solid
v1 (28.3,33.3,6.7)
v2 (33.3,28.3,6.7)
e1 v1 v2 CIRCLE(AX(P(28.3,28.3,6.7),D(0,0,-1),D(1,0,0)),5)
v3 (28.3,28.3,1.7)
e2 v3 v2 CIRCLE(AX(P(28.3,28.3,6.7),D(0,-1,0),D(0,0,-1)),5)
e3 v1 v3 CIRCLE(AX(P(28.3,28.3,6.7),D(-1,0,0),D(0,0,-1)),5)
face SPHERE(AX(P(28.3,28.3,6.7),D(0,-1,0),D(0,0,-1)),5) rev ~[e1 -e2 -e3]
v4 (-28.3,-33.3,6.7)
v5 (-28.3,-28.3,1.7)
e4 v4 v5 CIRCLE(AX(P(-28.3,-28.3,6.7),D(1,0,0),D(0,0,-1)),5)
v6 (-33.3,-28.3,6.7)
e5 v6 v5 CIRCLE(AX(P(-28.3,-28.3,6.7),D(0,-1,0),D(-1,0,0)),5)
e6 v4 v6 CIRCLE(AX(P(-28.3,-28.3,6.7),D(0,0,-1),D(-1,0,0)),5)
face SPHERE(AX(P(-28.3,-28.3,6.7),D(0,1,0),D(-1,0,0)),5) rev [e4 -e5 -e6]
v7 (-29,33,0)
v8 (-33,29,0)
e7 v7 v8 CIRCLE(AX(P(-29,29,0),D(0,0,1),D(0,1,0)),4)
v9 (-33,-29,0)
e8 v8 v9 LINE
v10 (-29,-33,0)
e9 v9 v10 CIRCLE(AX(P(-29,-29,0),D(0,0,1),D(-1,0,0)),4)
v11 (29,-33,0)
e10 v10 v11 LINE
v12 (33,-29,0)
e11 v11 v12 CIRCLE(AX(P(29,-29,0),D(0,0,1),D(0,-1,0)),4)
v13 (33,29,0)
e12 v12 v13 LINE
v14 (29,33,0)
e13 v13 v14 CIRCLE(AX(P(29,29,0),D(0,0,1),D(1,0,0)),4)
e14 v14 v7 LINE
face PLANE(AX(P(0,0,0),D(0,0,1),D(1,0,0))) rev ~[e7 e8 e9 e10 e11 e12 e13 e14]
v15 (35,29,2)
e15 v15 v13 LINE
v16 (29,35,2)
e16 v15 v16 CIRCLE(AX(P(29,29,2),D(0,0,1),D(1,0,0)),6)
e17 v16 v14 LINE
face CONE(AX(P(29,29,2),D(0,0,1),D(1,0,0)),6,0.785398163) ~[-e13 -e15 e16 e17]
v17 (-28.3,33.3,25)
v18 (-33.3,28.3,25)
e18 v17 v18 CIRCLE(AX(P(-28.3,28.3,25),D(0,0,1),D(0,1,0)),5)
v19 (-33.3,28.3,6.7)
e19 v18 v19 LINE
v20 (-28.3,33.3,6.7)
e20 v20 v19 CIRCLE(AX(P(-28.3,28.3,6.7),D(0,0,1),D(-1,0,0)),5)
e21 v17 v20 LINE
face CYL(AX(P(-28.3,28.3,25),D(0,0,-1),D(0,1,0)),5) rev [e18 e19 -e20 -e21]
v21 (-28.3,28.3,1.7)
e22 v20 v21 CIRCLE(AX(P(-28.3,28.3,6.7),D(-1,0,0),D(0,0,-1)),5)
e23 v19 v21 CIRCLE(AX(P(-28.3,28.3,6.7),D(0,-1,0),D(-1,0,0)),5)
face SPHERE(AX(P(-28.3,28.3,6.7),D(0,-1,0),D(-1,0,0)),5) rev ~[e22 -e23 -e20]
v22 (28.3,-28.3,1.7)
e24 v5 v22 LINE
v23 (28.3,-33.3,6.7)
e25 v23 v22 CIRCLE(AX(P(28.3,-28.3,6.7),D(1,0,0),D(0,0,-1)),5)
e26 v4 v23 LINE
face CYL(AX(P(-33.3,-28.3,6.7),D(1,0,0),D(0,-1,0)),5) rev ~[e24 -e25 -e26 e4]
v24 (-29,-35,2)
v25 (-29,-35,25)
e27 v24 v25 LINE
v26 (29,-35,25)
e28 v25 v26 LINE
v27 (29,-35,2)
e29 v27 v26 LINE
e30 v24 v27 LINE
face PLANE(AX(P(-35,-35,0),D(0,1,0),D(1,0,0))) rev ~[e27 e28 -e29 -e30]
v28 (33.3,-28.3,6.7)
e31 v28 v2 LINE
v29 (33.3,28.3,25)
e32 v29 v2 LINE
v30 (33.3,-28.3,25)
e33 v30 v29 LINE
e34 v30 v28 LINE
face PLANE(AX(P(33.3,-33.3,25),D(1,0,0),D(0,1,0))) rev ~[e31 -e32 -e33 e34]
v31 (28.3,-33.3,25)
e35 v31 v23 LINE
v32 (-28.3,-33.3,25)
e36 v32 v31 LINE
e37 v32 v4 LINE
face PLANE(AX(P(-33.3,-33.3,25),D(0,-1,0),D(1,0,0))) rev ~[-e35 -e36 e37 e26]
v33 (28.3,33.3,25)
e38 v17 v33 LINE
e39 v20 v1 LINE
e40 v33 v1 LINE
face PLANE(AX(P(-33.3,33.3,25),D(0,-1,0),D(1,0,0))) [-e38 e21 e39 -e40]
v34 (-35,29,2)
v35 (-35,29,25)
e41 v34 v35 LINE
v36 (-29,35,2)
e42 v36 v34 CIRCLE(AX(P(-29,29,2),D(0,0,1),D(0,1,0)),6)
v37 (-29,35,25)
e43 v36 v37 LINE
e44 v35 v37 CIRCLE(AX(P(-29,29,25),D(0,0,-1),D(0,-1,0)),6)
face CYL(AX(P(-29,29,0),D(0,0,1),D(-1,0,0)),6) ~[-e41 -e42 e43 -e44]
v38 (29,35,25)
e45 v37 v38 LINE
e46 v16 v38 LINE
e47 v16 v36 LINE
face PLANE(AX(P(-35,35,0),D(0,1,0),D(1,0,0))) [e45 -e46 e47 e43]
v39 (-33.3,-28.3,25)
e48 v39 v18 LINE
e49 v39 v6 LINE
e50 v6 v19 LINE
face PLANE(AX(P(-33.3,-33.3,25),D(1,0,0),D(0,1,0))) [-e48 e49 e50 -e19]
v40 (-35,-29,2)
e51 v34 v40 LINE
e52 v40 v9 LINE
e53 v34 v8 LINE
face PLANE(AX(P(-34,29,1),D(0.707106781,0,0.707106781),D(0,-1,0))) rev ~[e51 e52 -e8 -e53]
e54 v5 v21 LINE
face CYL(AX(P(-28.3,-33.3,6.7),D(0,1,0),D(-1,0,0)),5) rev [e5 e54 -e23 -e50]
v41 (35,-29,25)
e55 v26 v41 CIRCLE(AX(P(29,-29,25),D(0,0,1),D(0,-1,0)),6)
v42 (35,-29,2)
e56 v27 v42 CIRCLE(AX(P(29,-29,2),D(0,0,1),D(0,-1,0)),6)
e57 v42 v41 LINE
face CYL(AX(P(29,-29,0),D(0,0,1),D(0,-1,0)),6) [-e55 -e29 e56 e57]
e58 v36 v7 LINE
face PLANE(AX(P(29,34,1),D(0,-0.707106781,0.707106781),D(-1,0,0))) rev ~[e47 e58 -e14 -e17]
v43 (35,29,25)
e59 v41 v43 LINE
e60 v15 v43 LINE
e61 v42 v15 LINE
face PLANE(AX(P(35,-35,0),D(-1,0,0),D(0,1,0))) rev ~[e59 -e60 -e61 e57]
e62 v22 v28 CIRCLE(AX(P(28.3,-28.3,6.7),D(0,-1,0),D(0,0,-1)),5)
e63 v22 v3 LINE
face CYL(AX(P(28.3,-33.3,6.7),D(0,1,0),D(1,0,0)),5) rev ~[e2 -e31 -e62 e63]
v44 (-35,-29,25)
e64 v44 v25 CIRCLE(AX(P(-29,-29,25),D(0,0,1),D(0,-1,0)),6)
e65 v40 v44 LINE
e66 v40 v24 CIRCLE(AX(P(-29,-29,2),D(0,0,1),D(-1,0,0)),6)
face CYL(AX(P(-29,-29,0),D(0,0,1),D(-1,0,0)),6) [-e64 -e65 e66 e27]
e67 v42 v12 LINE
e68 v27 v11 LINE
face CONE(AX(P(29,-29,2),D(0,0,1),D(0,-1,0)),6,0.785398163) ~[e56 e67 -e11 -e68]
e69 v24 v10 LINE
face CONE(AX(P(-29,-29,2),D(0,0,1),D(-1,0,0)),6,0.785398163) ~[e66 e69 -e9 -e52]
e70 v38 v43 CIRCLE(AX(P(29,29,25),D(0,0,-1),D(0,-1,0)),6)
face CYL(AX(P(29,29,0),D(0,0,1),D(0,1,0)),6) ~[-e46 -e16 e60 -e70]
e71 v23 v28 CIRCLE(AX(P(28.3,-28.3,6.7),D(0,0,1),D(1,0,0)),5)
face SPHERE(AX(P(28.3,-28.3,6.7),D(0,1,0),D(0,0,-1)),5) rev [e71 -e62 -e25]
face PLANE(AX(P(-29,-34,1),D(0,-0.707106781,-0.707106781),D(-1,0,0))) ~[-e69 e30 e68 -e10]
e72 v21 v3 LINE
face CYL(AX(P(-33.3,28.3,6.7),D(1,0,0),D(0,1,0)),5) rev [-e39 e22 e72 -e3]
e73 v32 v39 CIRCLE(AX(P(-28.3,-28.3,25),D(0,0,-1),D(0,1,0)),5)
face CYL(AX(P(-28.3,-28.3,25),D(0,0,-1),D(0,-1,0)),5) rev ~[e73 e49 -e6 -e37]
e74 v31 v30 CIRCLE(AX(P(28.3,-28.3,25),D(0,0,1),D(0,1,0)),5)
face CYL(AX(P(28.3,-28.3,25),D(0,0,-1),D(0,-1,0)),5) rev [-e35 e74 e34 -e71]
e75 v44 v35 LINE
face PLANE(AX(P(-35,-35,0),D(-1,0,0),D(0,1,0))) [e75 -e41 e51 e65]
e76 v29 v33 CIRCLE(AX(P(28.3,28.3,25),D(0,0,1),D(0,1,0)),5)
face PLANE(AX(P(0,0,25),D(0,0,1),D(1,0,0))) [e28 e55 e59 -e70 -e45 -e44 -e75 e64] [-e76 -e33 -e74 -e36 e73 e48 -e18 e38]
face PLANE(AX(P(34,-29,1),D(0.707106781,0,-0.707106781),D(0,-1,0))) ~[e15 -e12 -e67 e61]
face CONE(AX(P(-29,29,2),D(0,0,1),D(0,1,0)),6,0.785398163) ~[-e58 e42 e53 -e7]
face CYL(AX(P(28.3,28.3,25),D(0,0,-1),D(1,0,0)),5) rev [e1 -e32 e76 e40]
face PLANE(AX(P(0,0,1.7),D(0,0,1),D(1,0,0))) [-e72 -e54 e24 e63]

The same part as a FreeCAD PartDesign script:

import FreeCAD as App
import Part
import Sketcher
from FreeCAD import Vector


def edges_at(feature, points):
    """Names of the edges that pass closest to the given points."""
    edges = feature.Shape.Edges
    near = lambda p: min(range(len(edges)), key=lambda i: edges[i].distToShape(Part.Vertex(*p))[0])
    return sorted({f"Edge{near(p) + 1}" for p in points})

doc = App.newDocument("Part")
params = doc.addObject("Spreadsheet::Sheet", "Params")
for row, (alias, value) in enumerate([
    ("sketch1_width", "70 mm"),
    ("pad1_length", "25 mm"),
    ("sketch2_width", "66.6 mm"),
    ("pocket1_length", "23.3 mm"),
    ("fillet_radius", "5 mm"),
    ("fillet2_radius", "6 mm"),
    ("chamfer_size", "2 mm"),
], start=1):
    params.set(f"A{row}", alias)
    params.set(f"B{row}", "=" + value)
    params.setAlias(f"B{row}", alias)

body = doc.addObject("PartDesign::Body", "Body")

# Sketch on XY plane
sketch1 = body.newObject("Sketcher::SketchObject", "Sketch")
sketch1.AttachmentSupport = (doc.getObject("XY_Plane"), [""])
sketch1.MapMode = "FlatFace"
sketch1.addGeometry(Part.LineSegment(Vector(-35, 35, 0), Vector(-35, -35, 0)), False)
sketch1.addGeometry(Part.LineSegment(Vector(-35, -35, 0), Vector(35, -35, 0)), False)
sketch1.addGeometry(Part.LineSegment(Vector(35, -35, 0), Vector(35, 35, 0)), False)
sketch1.addGeometry(Part.LineSegment(Vector(35, 35, 0), Vector(-35, 35, 0)), False)
sketch1.addConstraint(Sketcher.Constraint("Coincident", 0, 2, 1, 1))
sketch1.addConstraint(Sketcher.Constraint("Coincident", 1, 2, 2, 1))
sketch1.addConstraint(Sketcher.Constraint("Coincident", 2, 2, 3, 1))
sketch1.addConstraint(Sketcher.Constraint("Coincident", 3, 2, 0, 1))
sketch1.addConstraint(Sketcher.Constraint("Vertical", 0))
sketch1.addConstraint(Sketcher.Constraint("Horizontal", 1))
sketch1.addConstraint(Sketcher.Constraint("Vertical", 2))
sketch1.addConstraint(Sketcher.Constraint("Horizontal", 3))
sketch1.addConstraint(Sketcher.Constraint("Symmetric", 0, 2, 2, 2, -1, 1))
sketch1.addConstraint(Sketcher.Constraint("Equal", 3, 0))
sketch1.addConstraint(Sketcher.Constraint("DistanceX", 1, 1, 1, 2, 70.0))
sketch1.setExpression("Constraints[10]", "Params.sketch1_width")
pad1 = body.newObject("PartDesign::Pad", "Pad")
pad1.Profile = sketch1
pad1.setExpression("Length", "Params.pad1_length")

# Sketch on XY plane
sketch2 = body.newObject("Sketcher::SketchObject", "Sketch001")
sketch2.AttachmentSupport = (doc.getObject("XY_Plane"), [""])
sketch2.MapMode = "FlatFace"
sketch2.AttachmentOffset = App.Placement(Vector(0, 0, 25), App.Rotation())
sketch2.addGeometry(Part.LineSegment(Vector(-33, 33, 0), Vector(-33, -33, 0)), False)
sketch2.addGeometry(Part.LineSegment(Vector(-33, -33, 0), Vector(33, -33, 0)), False)
sketch2.addGeometry(Part.LineSegment(Vector(33, -33, 0), Vector(33, 33, 0)), False)
sketch2.addGeometry(Part.LineSegment(Vector(33, 33, 0), Vector(-33, 33, 0)), False)
sketch2.addConstraint(Sketcher.Constraint("Coincident", 0, 2, 1, 1))
sketch2.addConstraint(Sketcher.Constraint("Coincident", 1, 2, 2, 1))
sketch2.addConstraint(Sketcher.Constraint("Coincident", 2, 2, 3, 1))
sketch2.addConstraint(Sketcher.Constraint("Coincident", 3, 2, 0, 1))
sketch2.addConstraint(Sketcher.Constraint("Vertical", 0))
sketch2.addConstraint(Sketcher.Constraint("Horizontal", 1))
sketch2.addConstraint(Sketcher.Constraint("Vertical", 2))
sketch2.addConstraint(Sketcher.Constraint("Horizontal", 3))
sketch2.addConstraint(Sketcher.Constraint("Symmetric", 0, 2, 2, 2, -1, 1))
sketch2.addConstraint(Sketcher.Constraint("Equal", 3, 0))
sketch2.addConstraint(Sketcher.Constraint("DistanceX", 1, 1, 1, 2, 66.6))
sketch2.setExpression("Constraints[10]", "Params.sketch2_width")
pocket1 = body.newObject("PartDesign::Pocket", "Pocket")
pocket1.Profile = sketch2
pocket1.setExpression("Length", "Params.pocket1_length")
doc.recompute()

fillet = body.newObject("PartDesign::Fillet", "Fillet")
fillet.Base = (pocket1, edges_at(pocket1, [
    (-33.3, 0, 1.7),
    (33.3, 0, 1.7),
    (-33.3, 33.3, 13.35),
    (0, 33.3, 1.7),
    (-33.3, -33.3, 13.35),
    (0, -33.3, 1.7),
    (33.3, -33.3, 13.35),
    (33.3, 33.3, 13.35),
]))
fillet.setExpression("Radius", "Params.fillet_radius")
doc.recompute()

fillet2 = body.newObject("PartDesign::Fillet", "Fillet001")
fillet2.Base = (fillet, edges_at(fillet, [
    (35, 35, 12.5),
    (-35, 35, 12.5),
    (35, -35, 12.5),
    (-35, -35, 12.5),
]))
fillet2.setExpression("Radius", "Params.fillet2_radius")
doc.recompute()

chamfer = body.newObject("PartDesign::Chamfer", "Chamfer")
chamfer.Base = (fillet2, edges_at(fillet2, [(35, 0, 0)]))
chamfer.setExpression("Size", "Params.chamfer_size")

doc.recompute()
